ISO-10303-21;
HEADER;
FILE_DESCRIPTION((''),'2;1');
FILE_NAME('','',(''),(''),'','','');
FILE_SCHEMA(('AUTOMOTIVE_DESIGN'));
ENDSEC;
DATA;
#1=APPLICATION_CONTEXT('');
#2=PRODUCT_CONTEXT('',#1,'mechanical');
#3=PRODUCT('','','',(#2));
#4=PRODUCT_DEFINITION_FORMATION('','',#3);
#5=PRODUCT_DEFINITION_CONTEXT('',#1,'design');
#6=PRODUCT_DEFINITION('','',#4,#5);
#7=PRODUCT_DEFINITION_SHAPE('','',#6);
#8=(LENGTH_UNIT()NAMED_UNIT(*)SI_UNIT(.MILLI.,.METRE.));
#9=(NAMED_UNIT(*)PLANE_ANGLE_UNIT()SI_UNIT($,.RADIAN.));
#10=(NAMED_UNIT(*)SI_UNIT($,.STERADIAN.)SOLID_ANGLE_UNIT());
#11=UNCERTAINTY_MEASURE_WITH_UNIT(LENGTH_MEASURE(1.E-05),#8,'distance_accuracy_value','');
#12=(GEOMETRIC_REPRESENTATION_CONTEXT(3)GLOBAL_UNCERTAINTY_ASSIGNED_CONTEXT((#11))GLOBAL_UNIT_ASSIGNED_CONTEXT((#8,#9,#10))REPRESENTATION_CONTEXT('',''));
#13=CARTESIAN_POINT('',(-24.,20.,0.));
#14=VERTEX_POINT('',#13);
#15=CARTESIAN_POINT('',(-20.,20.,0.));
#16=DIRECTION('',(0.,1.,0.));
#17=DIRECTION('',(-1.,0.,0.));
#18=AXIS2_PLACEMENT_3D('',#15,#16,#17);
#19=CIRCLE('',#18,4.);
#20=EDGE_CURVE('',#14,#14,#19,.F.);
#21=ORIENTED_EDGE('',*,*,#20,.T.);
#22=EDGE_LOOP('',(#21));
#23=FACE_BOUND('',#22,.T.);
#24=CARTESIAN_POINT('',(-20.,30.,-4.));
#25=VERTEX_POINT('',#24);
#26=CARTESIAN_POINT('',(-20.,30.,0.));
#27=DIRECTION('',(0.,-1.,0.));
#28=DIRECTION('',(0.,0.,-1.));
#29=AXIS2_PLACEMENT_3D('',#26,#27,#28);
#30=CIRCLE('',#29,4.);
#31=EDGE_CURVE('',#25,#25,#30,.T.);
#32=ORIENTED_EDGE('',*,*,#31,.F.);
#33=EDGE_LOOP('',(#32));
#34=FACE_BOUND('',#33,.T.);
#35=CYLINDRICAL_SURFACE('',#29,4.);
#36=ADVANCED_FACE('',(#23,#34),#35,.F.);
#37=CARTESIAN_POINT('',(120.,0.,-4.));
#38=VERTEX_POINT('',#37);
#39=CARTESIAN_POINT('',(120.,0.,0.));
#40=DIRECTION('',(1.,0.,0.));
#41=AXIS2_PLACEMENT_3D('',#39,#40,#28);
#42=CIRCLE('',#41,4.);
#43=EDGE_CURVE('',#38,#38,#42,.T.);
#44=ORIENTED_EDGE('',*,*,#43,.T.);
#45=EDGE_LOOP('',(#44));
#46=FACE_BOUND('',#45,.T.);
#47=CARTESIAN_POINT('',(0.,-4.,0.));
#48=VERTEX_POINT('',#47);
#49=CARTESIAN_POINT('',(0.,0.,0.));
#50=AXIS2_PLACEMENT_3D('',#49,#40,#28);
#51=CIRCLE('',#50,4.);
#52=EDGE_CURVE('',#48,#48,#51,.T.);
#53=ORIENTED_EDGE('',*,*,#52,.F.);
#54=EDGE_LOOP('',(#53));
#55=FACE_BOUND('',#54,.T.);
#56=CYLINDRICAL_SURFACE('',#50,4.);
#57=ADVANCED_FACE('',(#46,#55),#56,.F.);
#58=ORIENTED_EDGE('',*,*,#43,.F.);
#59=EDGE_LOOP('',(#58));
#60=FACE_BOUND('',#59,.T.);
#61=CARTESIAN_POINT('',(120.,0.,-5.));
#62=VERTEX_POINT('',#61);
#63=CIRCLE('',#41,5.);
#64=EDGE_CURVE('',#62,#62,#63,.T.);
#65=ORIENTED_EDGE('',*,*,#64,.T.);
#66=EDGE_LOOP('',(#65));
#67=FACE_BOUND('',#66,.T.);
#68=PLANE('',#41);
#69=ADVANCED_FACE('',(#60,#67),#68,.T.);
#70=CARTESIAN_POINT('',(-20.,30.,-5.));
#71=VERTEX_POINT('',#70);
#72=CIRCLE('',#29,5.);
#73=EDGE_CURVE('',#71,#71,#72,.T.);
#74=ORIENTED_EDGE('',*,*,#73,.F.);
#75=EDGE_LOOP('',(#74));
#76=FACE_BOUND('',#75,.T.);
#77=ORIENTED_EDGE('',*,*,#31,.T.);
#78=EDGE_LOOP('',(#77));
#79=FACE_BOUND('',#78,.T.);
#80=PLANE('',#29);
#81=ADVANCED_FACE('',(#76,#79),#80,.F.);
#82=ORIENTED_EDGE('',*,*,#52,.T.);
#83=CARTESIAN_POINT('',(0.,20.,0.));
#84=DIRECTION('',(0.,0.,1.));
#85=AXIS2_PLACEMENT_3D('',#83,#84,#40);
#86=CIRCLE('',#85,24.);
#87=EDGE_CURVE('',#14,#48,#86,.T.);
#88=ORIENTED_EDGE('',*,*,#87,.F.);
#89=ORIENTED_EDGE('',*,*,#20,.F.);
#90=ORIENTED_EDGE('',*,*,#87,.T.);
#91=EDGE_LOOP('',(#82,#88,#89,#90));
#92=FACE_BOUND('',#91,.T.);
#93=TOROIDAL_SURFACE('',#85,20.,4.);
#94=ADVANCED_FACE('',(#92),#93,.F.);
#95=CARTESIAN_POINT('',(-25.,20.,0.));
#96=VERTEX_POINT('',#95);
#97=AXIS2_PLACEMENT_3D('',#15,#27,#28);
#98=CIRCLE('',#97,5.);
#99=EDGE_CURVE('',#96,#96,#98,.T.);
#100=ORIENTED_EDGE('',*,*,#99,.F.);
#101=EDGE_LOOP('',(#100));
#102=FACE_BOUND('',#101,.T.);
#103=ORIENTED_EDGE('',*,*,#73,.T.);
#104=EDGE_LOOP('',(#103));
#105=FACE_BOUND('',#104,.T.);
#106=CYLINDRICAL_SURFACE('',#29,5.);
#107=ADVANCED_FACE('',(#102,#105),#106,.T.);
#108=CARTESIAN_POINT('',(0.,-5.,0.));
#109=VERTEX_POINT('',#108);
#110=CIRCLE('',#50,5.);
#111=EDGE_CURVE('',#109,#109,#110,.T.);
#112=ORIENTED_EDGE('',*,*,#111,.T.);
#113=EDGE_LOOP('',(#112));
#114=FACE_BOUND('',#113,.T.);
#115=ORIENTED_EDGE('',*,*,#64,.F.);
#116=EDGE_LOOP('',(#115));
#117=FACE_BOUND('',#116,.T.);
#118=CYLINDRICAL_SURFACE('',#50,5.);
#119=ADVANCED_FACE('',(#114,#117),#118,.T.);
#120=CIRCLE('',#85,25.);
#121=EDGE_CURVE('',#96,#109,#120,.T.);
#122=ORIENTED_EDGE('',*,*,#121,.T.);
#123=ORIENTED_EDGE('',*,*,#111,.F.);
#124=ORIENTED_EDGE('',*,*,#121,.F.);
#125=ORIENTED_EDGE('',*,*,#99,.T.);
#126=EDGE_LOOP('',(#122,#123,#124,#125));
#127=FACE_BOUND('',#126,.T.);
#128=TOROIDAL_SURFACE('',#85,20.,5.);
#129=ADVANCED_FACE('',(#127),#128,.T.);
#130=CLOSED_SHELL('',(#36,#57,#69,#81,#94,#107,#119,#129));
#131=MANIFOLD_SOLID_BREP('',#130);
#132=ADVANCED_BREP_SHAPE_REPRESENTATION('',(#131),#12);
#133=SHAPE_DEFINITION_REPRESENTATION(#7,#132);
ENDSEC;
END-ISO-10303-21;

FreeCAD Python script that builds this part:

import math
import FreeCAD as App
import Part
import Sketcher
from FreeCAD import Vector

doc = App.newDocument("Part")
params = doc.addObject("Spreadsheet::Sheet", "Params")
for row, (alias, value) in enumerate([
    ("sketch1_diameter", "10 mm"),
    ("sketch1_diameter2", "8 mm"),
    ("sketch2_radius", "20 mm"),
    ("sketch2_width", "120 mm"),
    ("sketch2_height", "10 mm"),
], start=1):
    params.set(f"A{row}", alias)
    params.set(f"B{row}", "=" + value)
    params.setAlias(f"B{row}", alias)

body = doc.addObject("PartDesign::Body", "Body")

sketch1 = doc.addObject("Sketcher::SketchObject", "Sketch")
body.addObject(sketch1)
sketch1.AttachmentSupport = (doc.YZ_Plane, [""])
sketch1.MapMode = "FlatFace"
sketch1.AttachmentOffset = App.Placement(Vector(0, 0, 120), App.Rotation())
sketch1.addGeometry([
    Part.Circle(Vector(0, 0, 0), Vector(0, 0, 1), 5),
    Part.Circle(Vector(0, 0, 0), Vector(0, 0, 1), 4),
], False)
sketch1.addConstraint([
    Sketcher.Constraint("Coincident", 0, 3, -1, 1),
    Sketcher.Constraint("Coincident", 1, 3, -1, 1),
    Sketcher.Constraint("Diameter", 0, 10.0),
    Sketcher.Constraint("Diameter", 1, 8.0),
])
sketch1.setExpression("Constraints[2]", "Params.sketch1_diameter")
sketch1.setExpression("Constraints[3]", "Params.sketch1_diameter2")

sketch2 = doc.addObject("Sketcher::SketchObject", "Sketch001")
body.addObject(sketch2)
sketch2.AttachmentSupport = (doc.XY_Plane, [""])
sketch2.MapMode = "FlatFace"
sketch2.addGeometry([
    Part.LineSegment(Vector(120, 0, 0), Vector(0, 0, 0)),
    Part.ArcOfCircle(Part.Circle(Vector(0, 20, 0), Vector(0, 0, 1), 20), math.radians(180), math.radians(270)),
    Part.LineSegment(Vector(-20, 20, 0), Vector(-20, 30, 0)),
], False)
sketch2.addConstraint([
    Sketcher.Constraint("Tangent", 0, 2, 1, 2),
    Sketcher.Constraint("Tangent", 1, 1, 2, 1),
    Sketcher.Constraint("Horizontal", 0),
    Sketcher.Constraint("Vertical", 2),
    Sketcher.Constraint("Coincident", 0, 2, -1, 1),
    Sketcher.Constraint("Radius", 1, 20.0),
    Sketcher.Constraint("DistanceX", 0, 2, 0, 1, 120.0),
    Sketcher.Constraint("DistanceY", 2, 1, 2, 2, 10.0),
])
sketch2.setExpression("Constraints[5]", "Params.sketch2_radius")
sketch2.setExpression("Constraints[6]", "Params.sketch2_width")
sketch2.setExpression("Constraints[7]", "Params.sketch2_height")
doc.recompute()

additivepipe = doc.addObject("PartDesign::AdditivePipe", "AdditivePipe")
body.addObject(additivepipe)
additivepipe.Profile = sketch1
additivepipe.Spine = (sketch2, ["Edge1", "Edge2", "Edge3"])

doc.recompute()
